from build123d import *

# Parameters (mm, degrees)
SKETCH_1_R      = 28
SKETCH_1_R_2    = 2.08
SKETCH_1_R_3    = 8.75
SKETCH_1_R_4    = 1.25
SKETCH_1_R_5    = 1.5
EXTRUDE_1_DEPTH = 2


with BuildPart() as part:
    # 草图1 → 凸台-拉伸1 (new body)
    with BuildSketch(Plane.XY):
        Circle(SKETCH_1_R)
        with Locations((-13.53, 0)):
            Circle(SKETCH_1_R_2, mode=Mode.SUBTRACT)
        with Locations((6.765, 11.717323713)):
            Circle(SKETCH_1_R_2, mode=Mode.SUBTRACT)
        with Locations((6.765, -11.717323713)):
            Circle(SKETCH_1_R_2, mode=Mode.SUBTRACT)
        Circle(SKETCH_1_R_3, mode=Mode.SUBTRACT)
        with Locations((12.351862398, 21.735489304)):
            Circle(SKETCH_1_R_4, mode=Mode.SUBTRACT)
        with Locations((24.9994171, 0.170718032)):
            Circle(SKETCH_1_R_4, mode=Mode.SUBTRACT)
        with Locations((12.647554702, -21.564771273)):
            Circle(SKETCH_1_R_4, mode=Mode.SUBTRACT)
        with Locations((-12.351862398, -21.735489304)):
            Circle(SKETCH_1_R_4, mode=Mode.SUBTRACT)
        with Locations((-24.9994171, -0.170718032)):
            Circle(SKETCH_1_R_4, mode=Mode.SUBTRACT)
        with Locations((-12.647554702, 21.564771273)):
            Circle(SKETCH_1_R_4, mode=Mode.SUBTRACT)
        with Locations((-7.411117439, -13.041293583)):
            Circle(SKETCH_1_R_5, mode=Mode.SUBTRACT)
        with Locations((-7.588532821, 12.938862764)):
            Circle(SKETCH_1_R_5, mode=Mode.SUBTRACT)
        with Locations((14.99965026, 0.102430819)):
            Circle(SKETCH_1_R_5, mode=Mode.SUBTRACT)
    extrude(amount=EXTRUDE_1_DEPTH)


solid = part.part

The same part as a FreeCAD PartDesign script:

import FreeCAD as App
import Part
import Sketcher
from FreeCAD import Vector
Q = App.Units.Quantity

doc = App.newDocument("Part")
body = doc.addObject("PartDesign::Body", "Body")

# Sketch on XY plane
sketch1 = body.newObject("Sketcher::SketchObject", "Sketch")
sketch1.AttachmentSupport = (doc.getObject("XY_Plane"), [""])
sketch1.MapMode = "FlatFace"
sketch1.addGeometry([
    Part.Circle(Vector(0, 0, 0), Vector(0, 0, 1), 28),  # 0
    Part.Circle(Vector(-12.351862, -21.735489, 0), Vector(0, 0, 1), 1.25),  # 1
    Part.Circle(Vector(-7.411117, -13.041294, 0), Vector(0, 0, 1), 1.5),  # 2
    Part.Circle(Vector(-24.999417, -0.170718, 0), Vector(0, 0, 1), 1.25),  # 3
    Part.Circle(Vector(12.647555, -21.564771, 0), Vector(0, 0, 1), 1.25),  # 4
    Part.Circle(Vector(6.765, -11.717324, 0), Vector(0, 0, 1), 2.08),  # 5
    Part.Circle(Vector(-13.53, 0, 0), Vector(0, 0, 1), 2.08),  # 6
    Part.Circle(Vector(-7.588533, 12.938863, 0), Vector(0, 0, 1), 1.5),  # 7
    Part.Circle(Vector(-12.647555, 21.564771, 0), Vector(0, 0, 1), 1.25),  # 8
    Part.Circle(Vector(0, 0, 0), Vector(0, 0, 1), 8.75),  # 9
    Part.Circle(Vector(14.99965, 0.102431, 0), Vector(0, 0, 1), 1.5),  # 10
    Part.Circle(Vector(24.999417, 0.170718, 0), Vector(0, 0, 1), 1.25),  # 11
    Part.Circle(Vector(6.765, 11.717324, 0), Vector(0, 0, 1), 2.08),  # 12
    Part.Circle(Vector(12.351862, 21.735489, 0), Vector(0, 0, 1), 1.25),  # 13
], False)
sketch1.addConstraint([
    Sketcher.Constraint("Coincident", 0, 3, -1, 1),
    Sketcher.Constraint("Coincident", 9, 3, -1, 1),
    Sketcher.Constraint("Equal", 1, 3),
    Sketcher.Constraint("Equal", 3, 4),
    Sketcher.Constraint("Equal", 5, 6),
    Sketcher.Constraint("Equal", 2, 7),
    Sketcher.Constraint("Equal", 4, 8),
    Sketcher.Constraint("Equal", 7, 10),
    Sketcher.Constraint("Equal", 8, 11),
    Sketcher.Constraint("Equal", 6, 12),
    Sketcher.Constraint("Equal", 11, 13),
    Sketcher.Constraint("Symmetric", 4, 3, 8, 3, -1, 1),
    Sketcher.Constraint("Symmetric", 3, 3, 11, 3, -1, 1),
    Sketcher.Constraint("Symmetric", 1, 3, 13, 3, -1, 1),
    Sketcher.Constraint("Symmetric", 5, 3, 12, 3, -1),
    Sketcher.Constraint("PointOnObject", 6, 3, -1),
    Sketcher.Constraint("Diameter", 0, Q("56 mm")),
    Sketcher.Constraint("Diameter", 2, Q("3 mm")),
    Sketcher.Constraint("Diameter", 1, Q("2.5 mm")),
    Sketcher.Constraint("Diameter", 9, Q("17.5 mm")),
    Sketcher.Constraint("Diameter", 5, Q("4.16 mm")),
    Sketcher.Constraint("DistanceX", 6, 3, -1, 1, Q("13.53 mm")),
    Sketcher.Constraint("DistanceX", -1, 1, 5, 3, Q("6.765 mm")),
    Sketcher.Constraint("DistanceX", 3, 3, 2, 3, Q("17.5883 mm")),
    Sketcher.Constraint("DistanceY", 1, 3, -1, 1, Q("21.735489 mm")),
    Sketcher.Constraint("DistanceY", 3, 3, -1, 1, Q("0.170718 mm")),
    Sketcher.Constraint("DistanceY", 4, 3, -1, 1, Q("21.564771 mm")),
    Sketcher.Constraint("DistanceX", -1, 1, 10, 3, Q("14.99965 mm")),
    Sketcher.Constraint("DistanceY", -1, 1, 10, 3, Q("0.102431 mm")),
    Sketcher.Constraint("DistanceX", 3, 3, 4, 3, Q("37.646972 mm")),
    Sketcher.Constraint("DistanceY", 2, 3, 5, 3, Q("1.32397 mm")),
    Sketcher.Constraint("DistanceY", 3, 3, 7, 3, Q("13.109581 mm")),
    Sketcher.Constraint("DistanceX", 8, 3, 7, 3, Q("5.059022 mm")),
    Sketcher.Constraint("DistanceY", 5, 3, 11, 3, Q("11.888042 mm")),
    Sketcher.Constraint("DistanceX", 1, 3, -1, 1, Q("12.351862 mm")),
    Sketcher.Constraint("DistanceX", 2, 3, -1, 1, Q("7.411117 mm")),
])
pad1 = body.newObject("PartDesign::Pad", "Pad")
pad1.Profile = sketch1
pad1.Length = 2

doc.recompute()
